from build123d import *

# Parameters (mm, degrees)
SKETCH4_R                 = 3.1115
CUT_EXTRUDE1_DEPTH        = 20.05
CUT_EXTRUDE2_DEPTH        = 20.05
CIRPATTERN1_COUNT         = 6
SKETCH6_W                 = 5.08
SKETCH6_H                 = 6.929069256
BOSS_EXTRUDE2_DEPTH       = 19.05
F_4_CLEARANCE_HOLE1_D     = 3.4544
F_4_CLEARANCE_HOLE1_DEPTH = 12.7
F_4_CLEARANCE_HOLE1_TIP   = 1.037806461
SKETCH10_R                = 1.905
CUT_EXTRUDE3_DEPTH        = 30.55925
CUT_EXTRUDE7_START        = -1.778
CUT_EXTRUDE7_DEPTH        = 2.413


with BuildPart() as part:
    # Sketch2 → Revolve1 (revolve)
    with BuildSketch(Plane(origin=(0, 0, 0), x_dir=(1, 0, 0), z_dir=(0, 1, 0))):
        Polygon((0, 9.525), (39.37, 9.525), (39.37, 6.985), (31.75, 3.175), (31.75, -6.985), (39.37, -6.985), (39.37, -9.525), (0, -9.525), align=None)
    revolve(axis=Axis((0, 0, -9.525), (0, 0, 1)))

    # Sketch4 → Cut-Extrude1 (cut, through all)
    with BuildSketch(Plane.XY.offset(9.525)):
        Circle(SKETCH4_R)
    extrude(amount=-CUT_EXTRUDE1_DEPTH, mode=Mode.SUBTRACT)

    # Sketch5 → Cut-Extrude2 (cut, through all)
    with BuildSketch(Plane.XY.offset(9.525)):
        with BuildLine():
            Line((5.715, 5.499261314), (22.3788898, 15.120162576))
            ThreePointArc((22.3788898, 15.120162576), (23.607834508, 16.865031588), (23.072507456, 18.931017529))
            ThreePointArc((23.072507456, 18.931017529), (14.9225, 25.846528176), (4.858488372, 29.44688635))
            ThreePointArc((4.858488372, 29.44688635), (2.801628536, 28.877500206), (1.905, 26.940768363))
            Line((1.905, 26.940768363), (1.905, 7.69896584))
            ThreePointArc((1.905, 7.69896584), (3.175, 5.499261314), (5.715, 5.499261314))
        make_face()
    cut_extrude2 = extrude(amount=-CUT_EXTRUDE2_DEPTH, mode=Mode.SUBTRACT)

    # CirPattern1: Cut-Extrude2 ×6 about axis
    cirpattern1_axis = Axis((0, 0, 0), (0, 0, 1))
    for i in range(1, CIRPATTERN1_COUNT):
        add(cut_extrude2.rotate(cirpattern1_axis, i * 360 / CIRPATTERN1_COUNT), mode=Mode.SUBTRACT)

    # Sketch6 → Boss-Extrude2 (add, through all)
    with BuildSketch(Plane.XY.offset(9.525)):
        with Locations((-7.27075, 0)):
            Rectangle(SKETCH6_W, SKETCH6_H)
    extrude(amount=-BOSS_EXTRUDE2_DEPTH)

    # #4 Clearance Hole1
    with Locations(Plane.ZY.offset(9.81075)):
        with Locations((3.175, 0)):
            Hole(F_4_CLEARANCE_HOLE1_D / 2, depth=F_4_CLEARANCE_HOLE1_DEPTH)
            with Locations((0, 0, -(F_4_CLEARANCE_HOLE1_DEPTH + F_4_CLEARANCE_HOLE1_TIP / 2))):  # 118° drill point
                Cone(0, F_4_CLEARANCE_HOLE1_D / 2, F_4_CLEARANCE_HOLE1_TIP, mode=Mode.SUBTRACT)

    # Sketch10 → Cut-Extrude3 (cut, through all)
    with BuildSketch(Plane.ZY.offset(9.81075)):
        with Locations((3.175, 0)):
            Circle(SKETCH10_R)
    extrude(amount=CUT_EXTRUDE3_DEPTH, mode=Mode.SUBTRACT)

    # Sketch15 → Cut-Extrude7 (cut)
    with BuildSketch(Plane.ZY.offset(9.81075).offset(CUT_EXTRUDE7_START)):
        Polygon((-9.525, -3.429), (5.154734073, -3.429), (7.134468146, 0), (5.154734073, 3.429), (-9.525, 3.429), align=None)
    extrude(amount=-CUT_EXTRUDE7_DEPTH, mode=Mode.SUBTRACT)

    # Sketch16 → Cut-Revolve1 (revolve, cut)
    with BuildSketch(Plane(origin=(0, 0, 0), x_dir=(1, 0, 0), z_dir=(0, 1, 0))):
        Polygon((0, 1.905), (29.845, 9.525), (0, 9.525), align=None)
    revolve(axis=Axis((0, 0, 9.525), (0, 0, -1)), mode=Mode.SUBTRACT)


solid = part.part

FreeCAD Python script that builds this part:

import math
import FreeCAD as App
import Part
import Sketcher
Q = App.Units.Quantity


def add_polygon(sketch, points):
    """Adds a closed chain of lines whose ends are joined by coincident constraints."""
    first, n = sketch.GeometryCount, len(points)
    for a, b in zip(points, points[1:] + points[:1]):
        sketch.addGeometry(Part.LineSegment(App.Vector(*a, 0), App.Vector(*b, 0)), False)
    for i in range(n):
        sketch.addConstraint(Sketcher.Constraint("Coincident", first + i, 2, first + (i + 1) % n, 1))

doc = App.newDocument("Part")
body = doc.addObject("PartDesign::Body", "Body")

sketch1 = body.newObject("Sketcher::SketchObject", "Sketch")
sketch1.AttachmentSupport = (doc.getObject("XZ_Plane"), [""])
sketch1.MapMode = "FlatFace"
add_polygon(sketch1, [(39.4, -9.5), (0, -9.5), (0, 9.5), (39.4, 9.5), (39.4, 7), (31.8, 7), (31.8, -3.2), (39.4, -7)])
sketch1.addConstraint(Sketcher.Constraint("Horizontal", 0))
sketch1.addConstraint(Sketcher.Constraint("Vertical", 1))
sketch1.addConstraint(Sketcher.Constraint("Horizontal", 2))
sketch1.addConstraint(Sketcher.Constraint("Vertical", 3))
sketch1.addConstraint(Sketcher.Constraint("Horizontal", 4))
sketch1.addConstraint(Sketcher.Constraint("Vertical", 5))
sketch1.addConstraint(Sketcher.Constraint("Vertical", 7))
sketch1.addConstraint(Sketcher.Constraint("Symmetric", 0, 2, 1, 2, -1, 1))
sketch1.addConstraint(Sketcher.Constraint("Symmetric", 3, 2, 6, 2, -1))
sketch1.addConstraint(Sketcher.Constraint("DistanceX", 4, 2, 4, 1, Q("0.3 in")))
sketch1.addConstraint(Sketcher.Constraint("DistanceY", 3, 2, 3, 1, Q("0.1 in")))
sketch1.addConstraint(Sketcher.Constraint("DistanceY", 5, 2, 5, 1, Q("0.4 in")))
sketch1.addConstraint(Sketcher.Constraint("DistanceX", 0, 2, 0, 1, Q("1.55 in")))
sketch1.addConstraint(Sketcher.Constraint("DistanceY", 1, 1, 1, 2, Q("0.75 in")))
revolution = body.newObject("PartDesign::Revolution", "Revolution")
revolution.Profile = sketch1
revolution.ReferenceAxis = (sketch1, ["V_Axis"])
revolution.Angle = 360

sketch2 = body.newObject("Sketcher::SketchObject", "Sketch001")
sketch2.AttachmentSupport = (doc.getObject("XY_Plane"), [""])
sketch2.MapMode = "FlatFace"
sketch2.AttachmentOffset = App.Placement(App.Vector(0, 0, 0.375 * 25.4), App.Rotation())
sketch2.addGeometry(Part.Circle(App.Vector(0, 0, 0), App.Vector(0, 0, 1), 3.1), False)
sketch2.addConstraint(Sketcher.Constraint("Coincident", 0, 3, -1, 1))
sketch2.addConstraint(Sketcher.Constraint("Diameter", 0, Q("0.245 in")))
pocket1 = body.newObject("PartDesign::Pocket", "Pocket")
pocket1.Profile = sketch2
pocket1.Type = "ThroughAll"

sketch3 = body.newObject("Sketcher::SketchObject", "Sketch002")
sketch3.AttachmentSupport = (doc.getObject("XY_Plane"), [""])
sketch3.MapMode = "FlatFace"
sketch3.AttachmentOffset = App.Placement(App.Vector(0, 0, 0.375 * 25.4), App.Rotation())
sketch3.addGeometry(Part.LineSegment(App.Vector(5.7, 5.5, 0), App.Vector(22.4, 15.1, 0)), False)
sketch3.addGeometry(Part.ArcOfCircle(Part.Circle(App.Vector(21.1, 17.3, 0), App.Vector(0, 0, 1), 2.5), math.radians(-60), math.radians(39)), False)
sketch3.addGeometry(Part.ArcOfCircle(Part.Circle(App.Vector(0, 0, 0), App.Vector(0, 0, 1), 29.8), math.radians(39), math.radians(81)), False)
sketch3.addGeometry(Part.ArcOfCircle(Part.Circle(App.Vector(4.4, 26.9, 0), App.Vector(0, 0, 1), 2.5), math.radians(81), math.radians(180)), False)
sketch3.addGeometry(Part.LineSegment(App.Vector(1.9, 26.9, 0), App.Vector(1.9, 7.7, 0)), False)
sketch3.addGeometry(Part.ArcOfCircle(Part.Circle(App.Vector(4.4, 7.7, 0), App.Vector(0, 0, 1), 2.5), math.radians(180), math.radians(300)), False)
sketch3.addConstraint(Sketcher.Constraint("Tangent", 0, 2, 1, 1))
sketch3.addConstraint(Sketcher.Constraint("Tangent", 1, 2, 2, 1))
sketch3.addConstraint(Sketcher.Constraint("Tangent", 2, 2, 3, 1))
sketch3.addConstraint(Sketcher.Constraint("Tangent", 3, 2, 4, 1))
sketch3.addConstraint(Sketcher.Constraint("Tangent", 4, 2, 5, 1))
sketch3.addConstraint(Sketcher.Constraint("Tangent", 5, 2, 0, 1))
sketch3.addConstraint(Sketcher.Constraint("Vertical", 4))
sketch3.addConstraint(Sketcher.Constraint("Coincident", 2, 3, -1, 1))
sketch3.addConstraint(Sketcher.Constraint("Equal", 1, 3))
sketch3.addConstraint(Sketcher.Constraint("Equal", 3, 5))
sketch3.addConstraint(Sketcher.Constraint("Radius", 1, Q("0.1 in")))
sketch3.addConstraint(Sketcher.Constraint("Angle", 0, Q("30 deg")))
sketch3.addConstraint(Sketcher.Constraint("Radius", 2, Q("1.175 in")))
sketch3.addConstraint(Sketcher.Constraint("DistanceX", -1, 1, 3, 3, Q("0.175 in")))
sketch3.addConstraint(Sketcher.Constraint("DistanceY", 1, 3, 3, 3, 9.620901))
pocket2 = body.newObject("PartDesign::Pocket", "Pocket001")
pocket2.Profile = sketch3
pocket2.Type = "ThroughAll"
doc.recompute()

polarpattern = body.newObject("PartDesign::PolarPattern", "PolarPattern")
polarpattern.Originals = [pocket2]
polarpattern.Axis = (doc.getObject("Z_Axis"), [""])
polarpattern.Angle = 360
polarpattern.Occurrences = 6
body.Tip = polarpattern

sketch4 = body.newObject("Sketcher::SketchObject", "Sketch003")
sketch4.AttachmentSupport = (doc.getObject("XY_Plane"), [""])
sketch4.MapMode = "FlatFace"
sketch4.AttachmentOffset = App.Placement(App.Vector(0, 0, 0.375 * 25.4), App.Rotation())
add_polygon(sketch4, [(-10, 3), (-10, -3), (-5, -3), (-5, 3)])
sketch4.addConstraint(Sketcher.Constraint("Vertical", 0))
sketch4.addConstraint(Sketcher.Constraint("Horizontal", 1))
sketch4.addConstraint(Sketcher.Constraint("Vertical", 2))
sketch4.addConstraint(Sketcher.Constraint("Horizontal", 3))
sketch4.addConstraint(Sketcher.Constraint("DistanceX", 1, 1, 1, 2, Q("0.2 in")))
sketch4.addConstraint(Sketcher.Constraint("DistanceY", 0, 2, 0, 1, 6.929069))
sketch4.addConstraint(Sketcher.Constraint("DistanceX", 0, 2, -1, 1, 9.81075))
sketch4.addConstraint(Sketcher.Constraint("DistanceY", 0, 2, -1, 1, 3.464535))
pad1 = body.newObject("PartDesign::Pad", "Pad")
pad1.Profile = sketch4
pad1.Length = Q("0.75 in")
pad1.Reversed = True

sketch5 = body.newObject("Sketcher::SketchObject", "Sketch004")
sketch5.AttachmentSupport = (doc.getObject("YZ_Plane"), [""])
sketch5.MapMode = "FlatFace"
sketch5.AttachmentOffset = App.Placement(App.Vector(0, 0, -9.81075), App.Rotation())
sketch5.addGeometry(Part.Circle(App.Vector(0, 3.2, 0), App.Vector(0, 0, 1), 1.7), False)
sketch5.addConstraint(Sketcher.Constraint("PointOnObject", 0, 3, -2))
sketch5.addConstraint(Sketcher.Constraint("Diameter", 0, Q("0.136 in")))
sketch5.addConstraint(Sketcher.Constraint("DistanceY", -1, 1, 0, 3, Q("0.125 in")))
doc.recompute()
hole = body.newObject("PartDesign::Hole", "Hole")
hole.Profile = sketch5
hole.ThreadType = "None"
hole.Diameter = Q("0.136 in")
hole.DepthType = "Dimension"
hole.Depth = Q("0.5 in")
hole.DrillPoint = "Angled"
hole.DrillPointAngle = 118
hole.Reversed = True

sketch6 = body.newObject("Sketcher::SketchObject", "Sketch005")
sketch6.AttachmentSupport = (doc.getObject("YZ_Plane"), [""])
sketch6.MapMode = "FlatFace"
sketch6.AttachmentOffset = App.Placement(App.Vector(0, 0, -9.81075), App.Rotation())
sketch6.addGeometry(Part.Circle(App.Vector(0, 3.2, 0), App.Vector(0, 0, 1), 1.9), False)
sketch6.addConstraint(Sketcher.Constraint("PointOnObject", 0, 3, -2))
sketch6.addConstraint(Sketcher.Constraint("Diameter", 0, Q("0.15 in")))
sketch6.addConstraint(Sketcher.Constraint("DistanceY", -1, 1, 0, 3, Q("0.125 in")))
pocket3 = body.newObject("PartDesign::Pocket", "Pocket002")
pocket3.Profile = sketch6
pocket3.Type = "ThroughAll"

sketch7 = body.newObject("Sketcher::SketchObject", "Sketch006")
sketch7.AttachmentSupport = (doc.getObject("YZ_Plane"), [""])
sketch7.MapMode = "FlatFace"
sketch7.AttachmentOffset = App.Placement(App.Vector(0, 0, -8.03275), App.Rotation())
add_polygon(sketch7, [(-3.4, -9.5), (-3.4, 5.2), (0, 7.1), (3.4, 5.2), (3.4, -9.5)])
sketch7.addConstraint(Sketcher.Constraint("Vertical", 0))
sketch7.addConstraint(Sketcher.Constraint("Vertical", 3))
sketch7.addConstraint(Sketcher.Constraint("Horizontal", 4))
sketch7.addConstraint(Sketcher.Constraint("Symmetric", 0, 2, 2, 2, -2))
sketch7.addConstraint(Sketcher.Constraint("PointOnObject", 1, 2, -2))
sketch7.addConstraint(Sketcher.Constraint("Angle", 1, Q("30 deg")))
sketch7.addConstraint(Sketcher.Constraint("DistanceX", 4, 2, 4, 1, Q("0.27 in")))
sketch7.addConstraint(Sketcher.Constraint("DistanceY", 3, 2, -1, 1, Q("0.375 in")))
sketch7.addConstraint(Sketcher.Constraint("DistanceY", 0, 1, 0, 2, 14.679734))
pocket4 = body.newObject("PartDesign::Pocket", "Pocket003")
pocket4.Profile = sketch7
pocket4.Length = Q("0.095 in")
pocket4.Reversed = True

sketch8 = body.newObject("Sketcher::SketchObject", "Sketch007")
sketch8.AttachmentSupport = (doc.getObject("XZ_Plane"), [""])
sketch8.MapMode = "FlatFace"
add_polygon(sketch8, [(0, -2), (30, -10), (0, -10)])
sketch8.addConstraint(Sketcher.Constraint("Horizontal", 1))
sketch8.addConstraint(Sketcher.Constraint("Vertical", 2))
sketch8.addConstraint(Sketcher.Constraint("PointOnObject", 1, 2, -2))
sketch8.addConstraint(Sketcher.Constraint("DistanceY", 2, 1, 2, 2, Q("0.3 in")))
sketch8.addConstraint(Sketcher.Constraint("DistanceX", 1, 2, 1, 1, Q("1.175 in")))
sketch8.addConstraint(Sketcher.Constraint("DistanceY", 0, 2, -1, 1, Q("0.375 in")))
groove = body.newObject("PartDesign::Groove", "Groove")
groove.Profile = sketch8
groove.ReferenceAxis = (sketch8, ["V_Axis"])
groove.Angle = 360

doc.recompute()
